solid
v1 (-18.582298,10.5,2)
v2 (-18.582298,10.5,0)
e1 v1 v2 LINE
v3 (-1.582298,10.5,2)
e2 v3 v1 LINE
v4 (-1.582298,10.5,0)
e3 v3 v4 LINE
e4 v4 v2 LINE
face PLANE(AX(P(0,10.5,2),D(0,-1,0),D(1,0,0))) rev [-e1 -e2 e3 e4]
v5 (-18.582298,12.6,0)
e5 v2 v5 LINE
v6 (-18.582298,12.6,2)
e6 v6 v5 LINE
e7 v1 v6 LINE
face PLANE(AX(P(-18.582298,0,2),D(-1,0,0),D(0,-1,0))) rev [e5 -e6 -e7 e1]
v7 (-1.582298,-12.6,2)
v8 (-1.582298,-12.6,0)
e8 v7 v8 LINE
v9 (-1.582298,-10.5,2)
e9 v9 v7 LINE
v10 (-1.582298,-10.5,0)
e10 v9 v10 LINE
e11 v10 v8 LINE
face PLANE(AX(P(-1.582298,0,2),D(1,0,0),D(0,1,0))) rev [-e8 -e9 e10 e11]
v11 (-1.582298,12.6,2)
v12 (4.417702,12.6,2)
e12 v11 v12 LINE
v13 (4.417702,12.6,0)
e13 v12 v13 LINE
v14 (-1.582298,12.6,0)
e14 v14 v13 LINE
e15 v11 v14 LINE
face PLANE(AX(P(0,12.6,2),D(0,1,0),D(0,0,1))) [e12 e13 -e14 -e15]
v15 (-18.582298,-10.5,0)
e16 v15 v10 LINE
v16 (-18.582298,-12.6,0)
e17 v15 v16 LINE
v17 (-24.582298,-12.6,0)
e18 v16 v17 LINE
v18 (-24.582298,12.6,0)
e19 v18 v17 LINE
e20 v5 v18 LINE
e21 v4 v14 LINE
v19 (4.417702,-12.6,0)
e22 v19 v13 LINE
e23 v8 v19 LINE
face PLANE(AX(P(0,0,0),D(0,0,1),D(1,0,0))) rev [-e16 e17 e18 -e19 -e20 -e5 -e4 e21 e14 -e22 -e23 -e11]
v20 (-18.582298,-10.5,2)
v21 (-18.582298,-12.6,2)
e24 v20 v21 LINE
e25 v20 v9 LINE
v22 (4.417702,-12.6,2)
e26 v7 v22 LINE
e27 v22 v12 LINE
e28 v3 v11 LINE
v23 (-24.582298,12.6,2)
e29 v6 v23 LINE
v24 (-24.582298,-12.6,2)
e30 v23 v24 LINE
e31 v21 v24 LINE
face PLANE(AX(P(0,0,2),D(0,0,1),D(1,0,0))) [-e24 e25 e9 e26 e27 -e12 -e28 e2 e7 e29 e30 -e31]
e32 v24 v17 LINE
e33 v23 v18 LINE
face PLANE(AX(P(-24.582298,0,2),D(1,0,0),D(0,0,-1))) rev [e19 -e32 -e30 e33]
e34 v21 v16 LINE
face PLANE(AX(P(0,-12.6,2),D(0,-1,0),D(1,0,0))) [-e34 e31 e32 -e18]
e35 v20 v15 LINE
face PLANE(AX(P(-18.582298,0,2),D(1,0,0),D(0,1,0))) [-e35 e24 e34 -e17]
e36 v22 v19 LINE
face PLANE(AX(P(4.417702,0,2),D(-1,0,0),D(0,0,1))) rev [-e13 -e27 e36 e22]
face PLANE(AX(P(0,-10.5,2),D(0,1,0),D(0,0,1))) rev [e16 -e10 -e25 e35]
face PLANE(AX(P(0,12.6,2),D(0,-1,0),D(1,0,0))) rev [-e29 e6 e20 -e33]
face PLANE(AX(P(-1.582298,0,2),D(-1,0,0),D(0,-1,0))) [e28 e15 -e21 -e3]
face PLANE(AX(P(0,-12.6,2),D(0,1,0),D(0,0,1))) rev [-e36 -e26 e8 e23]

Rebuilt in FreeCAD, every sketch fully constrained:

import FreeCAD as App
import Part
import Sketcher

doc = App.newDocument("Part")
body = doc.addObject("PartDesign::Body", "Body")

sketch1 = body.newObject("Sketcher::SketchObject", "Sketch")
sketch1.AttachmentSupport = (doc.getObject("XY_Plane"), [""])
sketch1.MapMode = "FlatFace"
sketch1.addGeometry([
    Part.LineSegment(App.Vector(-18.6, -10.5, 0), App.Vector(-1.6, -10.5, 0)),
    Part.LineSegment(App.Vector(-1.6, -10.5, 0), App.Vector(-1.6, -12.6, 0)),
    Part.LineSegment(App.Vector(-1.6, -12.6, 0), App.Vector(4.4, -12.6, 0)),
    Part.LineSegment(App.Vector(4.4, -12.6, 0), App.Vector(4.4, 12.6, 0)),
    Part.LineSegment(App.Vector(4.4, 12.6, 0), App.Vector(-1.6, 12.6, 0)),
    Part.LineSegment(App.Vector(-1.6, 12.6, 0), App.Vector(-1.6, 10.5, 0)),
    Part.LineSegment(App.Vector(-1.6, 10.5, 0), App.Vector(-18.6, 10.5, 0)),
    Part.LineSegment(App.Vector(-18.6, 10.5, 0), App.Vector(-18.6, 12.6, 0)),
    Part.LineSegment(App.Vector(-18.6, 12.6, 0), App.Vector(-24.6, 12.6, 0)),
    Part.LineSegment(App.Vector(-24.6, 12.6, 0), App.Vector(-24.6, -12.6, 0)),
    Part.LineSegment(App.Vector(-24.6, -12.6, 0), App.Vector(-18.6, -12.6, 0)),
    Part.LineSegment(App.Vector(-18.6, -12.6, 0), App.Vector(-18.6, -10.5, 0)),
], False)
sketch1.addConstraint([
    Sketcher.Constraint("Coincident", 0, 2, 1, 1),
    Sketcher.Constraint("Coincident", 1, 2, 2, 1),
    Sketcher.Constraint("Coincident", 2, 2, 3, 1),
    Sketcher.Constraint("Coincident", 3, 2, 4, 1),
    Sketcher.Constraint("Coincident", 4, 2, 5, 1),
    Sketcher.Constraint("Coincident", 5, 2, 6, 1),
    Sketcher.Constraint("Coincident", 6, 2, 7, 1),
    Sketcher.Constraint("Coincident", 7, 2, 8, 1),
    Sketcher.Constraint("Coincident", 8, 2, 9, 1),
    Sketcher.Constraint("Coincident", 9, 2, 10, 1),
    Sketcher.Constraint("Coincident", 10, 2, 11, 1),
    Sketcher.Constraint("Coincident", 11, 2, 0, 1),
    Sketcher.Constraint("Horizontal", 0),
    Sketcher.Constraint("Vertical", 1),
    Sketcher.Constraint("Horizontal", 2),
    Sketcher.Constraint("Vertical", 3),
    Sketcher.Constraint("Horizontal", 4),
    Sketcher.Constraint("Vertical", 5),
    Sketcher.Constraint("Horizontal", 6),
    Sketcher.Constraint("Vertical", 7),
    Sketcher.Constraint("Horizontal", 8),
    Sketcher.Constraint("Vertical", 9),
    Sketcher.Constraint("Horizontal", 10),
    Sketcher.Constraint("Vertical", 11),
    Sketcher.Constraint("Symmetric", 1, 2, 4, 2, -1),
    Sketcher.Constraint("Symmetric", 7, 2, 10, 2, -1),
    Sketcher.Constraint("Horizontal", 4, 2, 7, 2),
    Sketcher.Constraint("Equal", 4, 8),
    Sketcher.Constraint("Equal", 1, 5),
    Sketcher.Constraint("DistanceX", 0, 1, 0, 2, 17.0),
    Sketcher.Constraint("DistanceX", 2, 1, 2, 2, 6.0),
    Sketcher.Constraint("DistanceY", 1, 2, 1, 1, 2.1),
    Sketcher.Constraint("DistanceY", 3, 1, 3, 2, 25.2),
    Sketcher.Constraint("DistanceX", 0, 2, -1, 1, 1.582298),
])
pad1 = body.newObject("PartDesign::Pad", "Pad")
pad1.Profile = sketch1
pad1.Length = 2

doc.recompute()
